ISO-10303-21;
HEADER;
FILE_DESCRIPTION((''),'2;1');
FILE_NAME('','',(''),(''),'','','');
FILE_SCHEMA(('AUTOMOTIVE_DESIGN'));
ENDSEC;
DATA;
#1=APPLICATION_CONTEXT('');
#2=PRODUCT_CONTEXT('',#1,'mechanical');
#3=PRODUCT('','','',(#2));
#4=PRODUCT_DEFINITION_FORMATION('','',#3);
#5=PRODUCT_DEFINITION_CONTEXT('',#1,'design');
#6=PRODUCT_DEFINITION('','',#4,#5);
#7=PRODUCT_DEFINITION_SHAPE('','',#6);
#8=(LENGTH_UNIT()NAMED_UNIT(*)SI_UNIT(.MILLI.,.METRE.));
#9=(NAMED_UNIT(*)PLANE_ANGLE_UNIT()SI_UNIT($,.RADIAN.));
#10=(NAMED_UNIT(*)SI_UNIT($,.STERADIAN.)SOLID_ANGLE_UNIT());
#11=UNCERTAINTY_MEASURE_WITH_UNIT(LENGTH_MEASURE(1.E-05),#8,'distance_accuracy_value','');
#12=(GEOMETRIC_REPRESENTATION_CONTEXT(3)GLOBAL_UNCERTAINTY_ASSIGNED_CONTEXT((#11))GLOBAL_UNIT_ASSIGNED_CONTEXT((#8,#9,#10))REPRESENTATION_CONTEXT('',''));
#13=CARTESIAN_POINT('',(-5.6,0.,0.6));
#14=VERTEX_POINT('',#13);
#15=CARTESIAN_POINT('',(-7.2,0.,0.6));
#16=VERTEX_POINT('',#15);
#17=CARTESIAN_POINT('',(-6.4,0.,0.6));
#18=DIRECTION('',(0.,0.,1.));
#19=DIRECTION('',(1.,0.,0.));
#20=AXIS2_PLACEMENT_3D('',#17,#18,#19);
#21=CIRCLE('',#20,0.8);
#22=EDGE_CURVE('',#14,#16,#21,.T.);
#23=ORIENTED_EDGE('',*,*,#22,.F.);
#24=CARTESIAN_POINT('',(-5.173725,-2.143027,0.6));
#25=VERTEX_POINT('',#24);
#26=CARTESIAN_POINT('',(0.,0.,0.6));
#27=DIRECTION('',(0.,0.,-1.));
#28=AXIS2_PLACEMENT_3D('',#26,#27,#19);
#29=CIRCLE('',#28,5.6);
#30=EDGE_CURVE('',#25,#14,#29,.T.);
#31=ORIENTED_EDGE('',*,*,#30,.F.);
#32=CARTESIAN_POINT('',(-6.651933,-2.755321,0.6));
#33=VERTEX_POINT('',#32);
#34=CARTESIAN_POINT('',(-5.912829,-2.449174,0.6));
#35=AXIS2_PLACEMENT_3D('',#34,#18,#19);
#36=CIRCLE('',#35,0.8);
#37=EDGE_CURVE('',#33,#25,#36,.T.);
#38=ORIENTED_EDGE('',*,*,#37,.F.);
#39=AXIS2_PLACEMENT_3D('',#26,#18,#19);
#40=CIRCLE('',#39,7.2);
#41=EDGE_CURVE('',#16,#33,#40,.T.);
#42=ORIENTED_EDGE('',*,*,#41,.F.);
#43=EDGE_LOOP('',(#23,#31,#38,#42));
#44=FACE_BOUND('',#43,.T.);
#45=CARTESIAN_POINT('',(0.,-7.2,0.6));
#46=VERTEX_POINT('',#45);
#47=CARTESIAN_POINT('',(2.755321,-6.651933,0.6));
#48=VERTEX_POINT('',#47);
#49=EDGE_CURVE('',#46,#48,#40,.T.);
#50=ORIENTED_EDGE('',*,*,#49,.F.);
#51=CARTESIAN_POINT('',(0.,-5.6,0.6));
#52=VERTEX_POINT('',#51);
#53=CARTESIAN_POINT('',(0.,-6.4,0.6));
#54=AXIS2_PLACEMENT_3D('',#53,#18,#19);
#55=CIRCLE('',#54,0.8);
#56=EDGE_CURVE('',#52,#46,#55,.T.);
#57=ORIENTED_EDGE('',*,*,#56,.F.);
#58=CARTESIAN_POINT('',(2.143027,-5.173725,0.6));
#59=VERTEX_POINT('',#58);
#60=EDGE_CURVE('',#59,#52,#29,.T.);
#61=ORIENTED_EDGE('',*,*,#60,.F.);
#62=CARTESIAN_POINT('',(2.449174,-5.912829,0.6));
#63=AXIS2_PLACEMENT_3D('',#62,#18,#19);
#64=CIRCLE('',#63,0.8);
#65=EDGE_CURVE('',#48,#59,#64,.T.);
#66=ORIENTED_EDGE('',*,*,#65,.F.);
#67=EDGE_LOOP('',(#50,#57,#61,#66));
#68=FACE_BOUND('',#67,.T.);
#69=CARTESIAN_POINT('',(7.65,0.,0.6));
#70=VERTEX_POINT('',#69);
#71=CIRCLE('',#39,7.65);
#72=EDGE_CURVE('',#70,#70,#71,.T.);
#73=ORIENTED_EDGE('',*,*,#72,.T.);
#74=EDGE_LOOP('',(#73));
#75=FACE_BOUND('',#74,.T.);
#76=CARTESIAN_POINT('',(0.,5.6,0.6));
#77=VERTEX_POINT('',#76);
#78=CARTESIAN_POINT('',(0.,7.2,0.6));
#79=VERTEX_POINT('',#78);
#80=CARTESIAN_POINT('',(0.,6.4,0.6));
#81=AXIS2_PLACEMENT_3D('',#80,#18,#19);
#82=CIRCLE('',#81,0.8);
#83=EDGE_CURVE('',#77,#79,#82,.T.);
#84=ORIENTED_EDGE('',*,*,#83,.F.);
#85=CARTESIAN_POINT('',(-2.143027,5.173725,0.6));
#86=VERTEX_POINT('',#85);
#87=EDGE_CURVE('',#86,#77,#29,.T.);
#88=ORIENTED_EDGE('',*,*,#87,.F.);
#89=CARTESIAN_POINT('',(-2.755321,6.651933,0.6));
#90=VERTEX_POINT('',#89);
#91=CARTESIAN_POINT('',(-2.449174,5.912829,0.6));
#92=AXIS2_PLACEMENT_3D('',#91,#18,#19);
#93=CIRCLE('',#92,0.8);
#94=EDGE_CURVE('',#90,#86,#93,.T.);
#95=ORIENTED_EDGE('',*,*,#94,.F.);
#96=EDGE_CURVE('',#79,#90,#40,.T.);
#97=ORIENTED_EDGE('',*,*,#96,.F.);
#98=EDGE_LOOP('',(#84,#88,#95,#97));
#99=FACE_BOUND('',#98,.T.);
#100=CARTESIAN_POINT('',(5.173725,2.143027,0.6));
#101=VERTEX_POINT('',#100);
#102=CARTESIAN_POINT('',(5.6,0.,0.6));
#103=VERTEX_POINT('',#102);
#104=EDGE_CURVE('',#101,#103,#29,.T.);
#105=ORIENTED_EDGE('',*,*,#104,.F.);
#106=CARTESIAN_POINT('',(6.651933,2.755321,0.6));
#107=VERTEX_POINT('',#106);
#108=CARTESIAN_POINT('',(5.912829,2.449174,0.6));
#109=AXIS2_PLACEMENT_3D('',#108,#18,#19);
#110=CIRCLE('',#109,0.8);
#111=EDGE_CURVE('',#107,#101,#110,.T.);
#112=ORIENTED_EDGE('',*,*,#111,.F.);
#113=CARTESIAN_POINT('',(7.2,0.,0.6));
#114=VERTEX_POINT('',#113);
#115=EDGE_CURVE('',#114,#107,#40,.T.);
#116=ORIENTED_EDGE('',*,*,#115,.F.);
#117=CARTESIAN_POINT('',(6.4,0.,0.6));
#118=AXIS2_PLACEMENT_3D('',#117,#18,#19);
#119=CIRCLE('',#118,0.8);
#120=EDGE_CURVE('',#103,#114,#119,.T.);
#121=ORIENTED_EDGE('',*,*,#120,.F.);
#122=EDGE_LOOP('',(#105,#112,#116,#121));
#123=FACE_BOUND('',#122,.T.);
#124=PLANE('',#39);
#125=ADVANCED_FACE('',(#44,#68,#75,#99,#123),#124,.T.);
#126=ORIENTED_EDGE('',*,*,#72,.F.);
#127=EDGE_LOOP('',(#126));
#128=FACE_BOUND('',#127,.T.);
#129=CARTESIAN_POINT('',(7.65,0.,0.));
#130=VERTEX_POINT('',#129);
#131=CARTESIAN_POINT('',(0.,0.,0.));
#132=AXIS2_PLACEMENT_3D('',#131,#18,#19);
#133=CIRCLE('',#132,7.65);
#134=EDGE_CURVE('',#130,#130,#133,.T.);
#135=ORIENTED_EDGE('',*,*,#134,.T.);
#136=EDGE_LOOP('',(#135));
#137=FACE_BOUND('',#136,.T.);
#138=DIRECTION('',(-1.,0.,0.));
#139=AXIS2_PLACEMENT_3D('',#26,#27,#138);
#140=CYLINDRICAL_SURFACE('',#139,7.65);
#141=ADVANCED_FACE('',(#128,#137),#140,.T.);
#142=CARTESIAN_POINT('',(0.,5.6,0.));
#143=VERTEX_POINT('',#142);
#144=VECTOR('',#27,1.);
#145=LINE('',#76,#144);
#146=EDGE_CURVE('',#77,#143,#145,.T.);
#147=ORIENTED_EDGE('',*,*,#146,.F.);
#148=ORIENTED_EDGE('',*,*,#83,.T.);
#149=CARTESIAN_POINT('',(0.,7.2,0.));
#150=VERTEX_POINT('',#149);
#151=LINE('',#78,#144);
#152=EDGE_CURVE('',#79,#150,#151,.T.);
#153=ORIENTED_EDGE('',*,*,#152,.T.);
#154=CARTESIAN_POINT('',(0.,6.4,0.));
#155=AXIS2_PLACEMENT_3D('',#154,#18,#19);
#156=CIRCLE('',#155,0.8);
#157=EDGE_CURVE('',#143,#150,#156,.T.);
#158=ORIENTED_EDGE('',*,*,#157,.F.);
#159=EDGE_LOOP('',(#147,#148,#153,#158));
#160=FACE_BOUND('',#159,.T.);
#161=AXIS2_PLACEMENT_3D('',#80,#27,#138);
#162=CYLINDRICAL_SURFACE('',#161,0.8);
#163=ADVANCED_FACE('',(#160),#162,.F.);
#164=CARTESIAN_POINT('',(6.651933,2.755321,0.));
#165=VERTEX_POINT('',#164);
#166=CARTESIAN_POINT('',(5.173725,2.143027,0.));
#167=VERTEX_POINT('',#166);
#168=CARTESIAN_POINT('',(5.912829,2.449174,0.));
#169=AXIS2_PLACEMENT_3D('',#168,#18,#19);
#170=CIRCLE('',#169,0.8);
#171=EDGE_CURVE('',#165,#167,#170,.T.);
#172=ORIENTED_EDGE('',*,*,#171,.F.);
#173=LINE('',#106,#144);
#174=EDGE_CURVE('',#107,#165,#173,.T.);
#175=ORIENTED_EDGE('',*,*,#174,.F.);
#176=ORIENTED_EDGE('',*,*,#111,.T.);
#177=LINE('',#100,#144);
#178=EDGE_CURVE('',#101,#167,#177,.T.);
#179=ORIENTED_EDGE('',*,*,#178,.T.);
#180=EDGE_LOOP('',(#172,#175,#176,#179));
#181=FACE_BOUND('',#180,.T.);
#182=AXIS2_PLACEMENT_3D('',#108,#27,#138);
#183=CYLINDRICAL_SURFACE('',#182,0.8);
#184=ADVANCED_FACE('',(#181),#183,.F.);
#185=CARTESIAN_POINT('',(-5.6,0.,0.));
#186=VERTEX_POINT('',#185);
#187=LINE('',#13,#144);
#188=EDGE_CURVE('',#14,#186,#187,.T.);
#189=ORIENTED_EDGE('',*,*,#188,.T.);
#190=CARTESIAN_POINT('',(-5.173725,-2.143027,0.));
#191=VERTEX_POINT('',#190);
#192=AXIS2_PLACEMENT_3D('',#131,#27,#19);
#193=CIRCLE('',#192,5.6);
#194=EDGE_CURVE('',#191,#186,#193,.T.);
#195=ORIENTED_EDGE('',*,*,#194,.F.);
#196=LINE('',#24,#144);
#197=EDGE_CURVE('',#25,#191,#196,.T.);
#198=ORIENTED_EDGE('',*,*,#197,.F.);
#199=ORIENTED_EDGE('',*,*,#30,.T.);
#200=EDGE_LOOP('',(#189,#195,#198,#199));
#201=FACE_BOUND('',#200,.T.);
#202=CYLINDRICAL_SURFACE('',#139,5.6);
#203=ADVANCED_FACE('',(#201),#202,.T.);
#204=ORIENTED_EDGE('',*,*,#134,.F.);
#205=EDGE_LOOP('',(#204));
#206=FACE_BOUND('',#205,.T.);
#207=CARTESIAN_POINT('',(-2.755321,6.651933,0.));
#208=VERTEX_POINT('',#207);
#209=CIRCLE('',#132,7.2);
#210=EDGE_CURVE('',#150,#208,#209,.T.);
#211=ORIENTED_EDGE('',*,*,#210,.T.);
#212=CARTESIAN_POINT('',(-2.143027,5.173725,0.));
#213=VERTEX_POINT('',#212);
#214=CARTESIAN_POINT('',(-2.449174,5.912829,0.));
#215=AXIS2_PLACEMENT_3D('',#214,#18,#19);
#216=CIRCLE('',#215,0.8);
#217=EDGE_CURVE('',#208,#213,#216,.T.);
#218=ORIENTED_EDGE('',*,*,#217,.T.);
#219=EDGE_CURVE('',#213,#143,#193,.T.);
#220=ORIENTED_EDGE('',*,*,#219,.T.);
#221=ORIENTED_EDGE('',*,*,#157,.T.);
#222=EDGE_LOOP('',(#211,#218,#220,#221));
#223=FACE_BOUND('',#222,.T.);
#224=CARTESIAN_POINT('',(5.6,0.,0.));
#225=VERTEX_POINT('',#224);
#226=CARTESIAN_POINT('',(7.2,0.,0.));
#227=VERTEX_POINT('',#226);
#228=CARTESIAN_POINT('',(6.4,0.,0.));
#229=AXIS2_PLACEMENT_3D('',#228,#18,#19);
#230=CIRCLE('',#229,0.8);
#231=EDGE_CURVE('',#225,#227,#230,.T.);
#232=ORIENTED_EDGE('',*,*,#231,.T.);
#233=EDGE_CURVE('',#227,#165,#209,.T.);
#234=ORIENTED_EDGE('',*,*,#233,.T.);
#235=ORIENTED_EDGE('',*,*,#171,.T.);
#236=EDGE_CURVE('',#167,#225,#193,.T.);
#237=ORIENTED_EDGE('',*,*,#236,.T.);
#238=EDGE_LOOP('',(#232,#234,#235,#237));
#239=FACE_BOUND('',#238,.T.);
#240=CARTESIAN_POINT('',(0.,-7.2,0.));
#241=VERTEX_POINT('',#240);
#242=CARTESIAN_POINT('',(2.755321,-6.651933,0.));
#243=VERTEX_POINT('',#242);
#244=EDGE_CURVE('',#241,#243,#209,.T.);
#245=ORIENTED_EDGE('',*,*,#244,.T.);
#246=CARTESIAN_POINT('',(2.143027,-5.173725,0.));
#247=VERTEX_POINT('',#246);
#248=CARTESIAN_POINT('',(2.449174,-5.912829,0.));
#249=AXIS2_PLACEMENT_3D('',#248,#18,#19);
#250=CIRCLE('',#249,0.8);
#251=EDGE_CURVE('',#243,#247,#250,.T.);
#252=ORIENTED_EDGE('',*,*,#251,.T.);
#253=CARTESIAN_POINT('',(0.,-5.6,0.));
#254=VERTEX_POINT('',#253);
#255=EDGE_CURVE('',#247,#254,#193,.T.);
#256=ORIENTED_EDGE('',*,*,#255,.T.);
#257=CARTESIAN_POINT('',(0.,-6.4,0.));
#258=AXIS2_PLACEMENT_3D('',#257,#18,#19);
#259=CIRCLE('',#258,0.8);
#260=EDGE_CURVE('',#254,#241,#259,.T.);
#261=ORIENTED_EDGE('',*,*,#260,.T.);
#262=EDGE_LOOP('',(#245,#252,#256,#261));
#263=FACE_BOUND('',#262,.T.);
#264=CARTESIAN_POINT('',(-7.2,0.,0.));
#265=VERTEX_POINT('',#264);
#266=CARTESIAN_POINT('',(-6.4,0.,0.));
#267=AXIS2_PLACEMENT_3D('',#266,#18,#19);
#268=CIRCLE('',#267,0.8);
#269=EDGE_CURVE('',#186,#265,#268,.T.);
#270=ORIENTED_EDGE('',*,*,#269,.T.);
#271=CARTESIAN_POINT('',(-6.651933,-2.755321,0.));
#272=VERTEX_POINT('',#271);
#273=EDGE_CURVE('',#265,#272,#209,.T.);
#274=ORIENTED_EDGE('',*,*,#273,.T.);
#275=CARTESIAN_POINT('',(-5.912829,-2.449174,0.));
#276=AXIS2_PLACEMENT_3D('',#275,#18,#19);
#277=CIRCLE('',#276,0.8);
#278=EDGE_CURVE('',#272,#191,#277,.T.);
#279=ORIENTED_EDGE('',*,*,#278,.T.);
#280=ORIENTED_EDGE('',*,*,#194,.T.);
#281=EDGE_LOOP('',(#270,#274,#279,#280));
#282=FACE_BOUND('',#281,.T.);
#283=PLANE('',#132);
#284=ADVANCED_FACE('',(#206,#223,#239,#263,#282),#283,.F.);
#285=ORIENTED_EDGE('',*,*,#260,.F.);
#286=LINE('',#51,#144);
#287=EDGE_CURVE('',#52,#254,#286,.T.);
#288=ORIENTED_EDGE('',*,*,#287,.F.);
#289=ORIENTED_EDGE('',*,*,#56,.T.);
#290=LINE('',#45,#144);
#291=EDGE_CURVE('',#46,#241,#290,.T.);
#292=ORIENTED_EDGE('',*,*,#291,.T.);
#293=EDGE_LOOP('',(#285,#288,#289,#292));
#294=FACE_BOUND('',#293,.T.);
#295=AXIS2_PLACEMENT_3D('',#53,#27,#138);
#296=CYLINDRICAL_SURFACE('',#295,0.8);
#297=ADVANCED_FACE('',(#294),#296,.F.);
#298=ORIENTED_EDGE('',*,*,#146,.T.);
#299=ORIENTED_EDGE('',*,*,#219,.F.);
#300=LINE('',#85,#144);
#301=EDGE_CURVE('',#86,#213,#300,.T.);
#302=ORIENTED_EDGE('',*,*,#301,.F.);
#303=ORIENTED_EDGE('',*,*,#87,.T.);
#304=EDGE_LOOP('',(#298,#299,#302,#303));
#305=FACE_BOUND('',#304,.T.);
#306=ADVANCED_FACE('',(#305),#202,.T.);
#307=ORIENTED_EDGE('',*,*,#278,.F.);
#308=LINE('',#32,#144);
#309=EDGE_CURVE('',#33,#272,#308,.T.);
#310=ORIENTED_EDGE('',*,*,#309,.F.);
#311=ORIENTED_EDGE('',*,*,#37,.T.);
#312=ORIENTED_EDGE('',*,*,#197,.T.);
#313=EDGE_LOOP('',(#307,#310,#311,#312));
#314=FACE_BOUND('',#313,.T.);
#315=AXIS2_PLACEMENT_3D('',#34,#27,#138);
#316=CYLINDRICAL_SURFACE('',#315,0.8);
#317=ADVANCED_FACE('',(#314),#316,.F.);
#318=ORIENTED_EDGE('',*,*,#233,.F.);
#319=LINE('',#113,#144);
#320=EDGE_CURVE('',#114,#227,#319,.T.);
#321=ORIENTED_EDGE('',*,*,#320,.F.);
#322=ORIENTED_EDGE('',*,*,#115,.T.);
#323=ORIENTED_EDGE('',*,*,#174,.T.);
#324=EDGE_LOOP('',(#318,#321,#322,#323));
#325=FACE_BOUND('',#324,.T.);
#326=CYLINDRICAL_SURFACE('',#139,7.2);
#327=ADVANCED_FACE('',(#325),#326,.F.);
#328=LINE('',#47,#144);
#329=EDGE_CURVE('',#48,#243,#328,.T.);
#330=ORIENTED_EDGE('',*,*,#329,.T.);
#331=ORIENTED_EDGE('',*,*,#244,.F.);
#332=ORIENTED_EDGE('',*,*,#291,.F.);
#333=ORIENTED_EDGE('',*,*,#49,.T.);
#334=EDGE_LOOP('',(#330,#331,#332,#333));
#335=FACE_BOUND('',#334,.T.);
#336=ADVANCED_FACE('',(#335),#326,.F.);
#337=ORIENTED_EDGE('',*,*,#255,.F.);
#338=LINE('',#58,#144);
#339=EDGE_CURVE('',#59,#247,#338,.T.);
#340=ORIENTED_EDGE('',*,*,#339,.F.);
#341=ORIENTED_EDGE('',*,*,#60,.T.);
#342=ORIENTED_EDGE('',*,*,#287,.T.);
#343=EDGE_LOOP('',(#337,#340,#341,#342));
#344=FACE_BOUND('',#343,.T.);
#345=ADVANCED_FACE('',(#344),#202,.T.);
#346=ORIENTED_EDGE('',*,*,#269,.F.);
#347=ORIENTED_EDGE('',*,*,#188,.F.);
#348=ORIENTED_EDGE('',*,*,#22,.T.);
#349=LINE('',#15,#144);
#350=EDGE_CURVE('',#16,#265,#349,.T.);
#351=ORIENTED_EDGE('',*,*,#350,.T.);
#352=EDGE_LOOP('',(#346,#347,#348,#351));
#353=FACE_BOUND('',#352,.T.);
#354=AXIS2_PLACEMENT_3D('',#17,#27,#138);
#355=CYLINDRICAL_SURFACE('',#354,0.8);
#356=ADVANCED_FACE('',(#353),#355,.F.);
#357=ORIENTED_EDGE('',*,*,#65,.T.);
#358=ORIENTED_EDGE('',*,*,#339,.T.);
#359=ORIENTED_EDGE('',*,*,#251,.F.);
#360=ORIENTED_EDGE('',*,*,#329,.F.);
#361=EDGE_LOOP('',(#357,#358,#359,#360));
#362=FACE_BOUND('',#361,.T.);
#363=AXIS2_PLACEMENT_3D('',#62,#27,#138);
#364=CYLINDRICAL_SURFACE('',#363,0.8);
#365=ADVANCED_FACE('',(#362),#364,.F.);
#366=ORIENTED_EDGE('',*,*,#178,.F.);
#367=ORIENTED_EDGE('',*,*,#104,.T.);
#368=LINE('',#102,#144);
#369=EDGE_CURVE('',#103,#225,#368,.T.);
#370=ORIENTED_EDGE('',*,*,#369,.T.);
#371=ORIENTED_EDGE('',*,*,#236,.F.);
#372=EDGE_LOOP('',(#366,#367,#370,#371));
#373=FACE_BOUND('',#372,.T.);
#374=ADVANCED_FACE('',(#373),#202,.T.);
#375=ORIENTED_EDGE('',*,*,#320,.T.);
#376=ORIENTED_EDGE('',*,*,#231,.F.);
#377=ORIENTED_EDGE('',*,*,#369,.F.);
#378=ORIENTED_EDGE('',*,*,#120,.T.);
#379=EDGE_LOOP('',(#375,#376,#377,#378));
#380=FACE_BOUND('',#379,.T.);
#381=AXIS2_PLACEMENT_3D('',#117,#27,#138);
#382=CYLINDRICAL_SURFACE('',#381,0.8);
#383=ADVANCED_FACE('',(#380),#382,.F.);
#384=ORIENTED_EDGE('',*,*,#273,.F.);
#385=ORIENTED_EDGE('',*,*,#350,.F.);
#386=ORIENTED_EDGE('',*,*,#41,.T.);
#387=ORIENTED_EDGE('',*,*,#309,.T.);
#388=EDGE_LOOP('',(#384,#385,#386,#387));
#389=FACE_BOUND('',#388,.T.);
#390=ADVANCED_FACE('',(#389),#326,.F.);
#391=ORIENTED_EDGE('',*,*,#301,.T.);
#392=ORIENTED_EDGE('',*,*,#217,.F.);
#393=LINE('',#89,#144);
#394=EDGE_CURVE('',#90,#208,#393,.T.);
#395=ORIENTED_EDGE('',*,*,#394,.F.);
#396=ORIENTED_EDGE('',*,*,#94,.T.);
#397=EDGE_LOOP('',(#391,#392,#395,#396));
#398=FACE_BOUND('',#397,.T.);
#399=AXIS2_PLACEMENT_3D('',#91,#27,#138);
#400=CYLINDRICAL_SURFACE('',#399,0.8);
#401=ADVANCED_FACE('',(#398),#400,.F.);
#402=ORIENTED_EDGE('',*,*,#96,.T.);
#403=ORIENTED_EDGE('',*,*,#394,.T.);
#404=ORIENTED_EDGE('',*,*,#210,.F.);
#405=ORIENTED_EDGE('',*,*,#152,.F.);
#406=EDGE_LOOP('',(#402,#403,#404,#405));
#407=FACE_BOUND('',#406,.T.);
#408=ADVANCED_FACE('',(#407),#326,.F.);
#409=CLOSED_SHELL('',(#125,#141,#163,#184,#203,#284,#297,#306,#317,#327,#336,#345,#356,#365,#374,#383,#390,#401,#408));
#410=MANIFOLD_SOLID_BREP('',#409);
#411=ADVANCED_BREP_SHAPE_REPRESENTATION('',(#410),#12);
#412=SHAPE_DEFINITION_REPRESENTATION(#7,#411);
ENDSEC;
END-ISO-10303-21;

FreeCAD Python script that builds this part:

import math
import FreeCAD as App
import Part
import Sketcher

V = App.Vector
Q = App.Units.Quantity

doc = App.newDocument("Part")
body = doc.addObject("PartDesign::Body", "Body")

# Sketch on XY plane
sketch1 = doc.addObject("Sketcher::SketchObject", "Sketch")
body.addObject(sketch1)
sketch1.AttachmentSupport = (doc.XY_Plane, [""])
sketch1.MapMode = "FlatFace"
sketch1.addGeometry([
    Part.Circle(V(0, 0, 0), V(0, 0, 1), 7.65),  # 0
    Part.ArcOfCircle(Part.Circle(V(-5.912829, -2.449174, 0), V(0, 0, 1), 0.8), math.radians(-157.5), math.radians(22.5)),  # 1
    Part.ArcOfCircle(Part.Circle(V(0, 0, 0), V(0, 0, 1), 7.2), math.radians(180), math.radians(202.5)),  # 2
    Part.ArcOfCircle(Part.Circle(V(-6.4, 0, 0), V(0, 0, 1), 0.8), math.radians(0), math.radians(180)),  # 3
    Part.ArcOfCircle(Part.Circle(V(0, 0, 0), V(0, 0, 1), 5.6), math.radians(-180), math.radians(-157.5)),  # 4
    Part.ArcOfCircle(Part.Circle(V(2.449174, -5.912829, 0), V(0, 0, 1), 0.8), math.radians(-67.5), math.radians(112.5)),  # 5
    Part.ArcOfCircle(Part.Circle(V(0, 0, 0), V(0, 0, 1), 7.2), math.radians(-90), math.radians(-67.5)),  # 6
    Part.ArcOfCircle(Part.Circle(V(0, -6.4, 0), V(0, 0, 1), 0.8), math.radians(90), math.radians(270)),  # 7
    Part.ArcOfCircle(Part.Circle(V(0, 0, 0), V(0, 0, 1), 5.6), math.radians(-90), math.radians(-67.5)),  # 8
    Part.ArcOfCircle(Part.Circle(V(0, 6.4, 0), V(0, 0, 1), 0.8), math.radians(-90), math.radians(90)),  # 9
    Part.ArcOfCircle(Part.Circle(V(0, 0, 0), V(0, 0, 1), 5.6), math.radians(90), math.radians(112.5)),  # 10
    Part.ArcOfCircle(Part.Circle(V(-2.449174, 5.912829, 0), V(0, 0, 1), 0.8), math.radians(112.5), math.radians(292.5)),  # 11
    Part.ArcOfCircle(Part.Circle(V(0, 0, 0), V(0, 0, 1), 7.2), math.radians(90), math.radians(112.5)),  # 12
    Part.ArcOfCircle(Part.Circle(V(5.912829, 2.449174, 0), V(0, 0, 1), 0.8), math.radians(22.5), math.radians(202.5)),  # 13
    Part.ArcOfCircle(Part.Circle(V(0, 0, 0), V(0, 0, 1), 7.2), math.radians(0), math.radians(22.5)),  # 14
    Part.ArcOfCircle(Part.Circle(V(6.4, 0, 0), V(0, 0, 1), 0.8), math.radians(180), math.radians(360)),  # 15
    Part.ArcOfCircle(Part.Circle(V(0, 0, 0), V(0, 0, 1), 5.6), math.radians(0), math.radians(22.5)),  # 16
], False)
sketch1.addConstraint([
    Sketcher.Constraint("Tangent", 1, 1, 2, 2),
    Sketcher.Constraint("Tangent", 2, 1, 3, 2),
    Sketcher.Constraint("Tangent", 3, 1, 4, 1),
    Sketcher.Constraint("Tangent", 4, 2, 1, 2),
    Sketcher.Constraint("Tangent", 5, 1, 6, 2),
    Sketcher.Constraint("Tangent", 6, 1, 7, 2),
    Sketcher.Constraint("Tangent", 7, 1, 8, 1),
    Sketcher.Constraint("Tangent", 8, 2, 5, 2),
    Sketcher.Constraint("Tangent", 9, 1, 10, 1),
    Sketcher.Constraint("Tangent", 10, 2, 11, 2),
    Sketcher.Constraint("Tangent", 11, 1, 12, 2),
    Sketcher.Constraint("Tangent", 12, 1, 9, 2),
    Sketcher.Constraint("Tangent", 13, 1, 14, 2),
    Sketcher.Constraint("Tangent", 14, 1, 15, 2),
    Sketcher.Constraint("Tangent", 15, 1, 16, 1),
    Sketcher.Constraint("Tangent", 16, 2, 13, 2),
    Sketcher.Constraint("Coincident", 0, 3, -1, 1),
    Sketcher.Constraint("Coincident", 2, 3, -1, 1),
    Sketcher.Constraint("Coincident", 4, 3, -1, 1),
    Sketcher.Constraint("Coincident", 6, 3, -1, 1),
    Sketcher.Constraint("Coincident", 8, 3, -1, 1),
    Sketcher.Constraint("Coincident", 10, 3, -1, 1),
    Sketcher.Constraint("Coincident", 12, 3, -1, 1),
    Sketcher.Constraint("Coincident", 14, 3, -1, 1),
    Sketcher.Constraint("Coincident", 16, 3, -1, 1),
    Sketcher.Constraint("Equal", 3, 5),
    Sketcher.Constraint("Equal", 2, 6),
    Sketcher.Constraint("Equal", 7, 9),
    Sketcher.Constraint("Equal", 8, 10),
    Sketcher.Constraint("Equal", 11, 13),
    Sketcher.Constraint("Equal", 12, 14),
    Sketcher.Constraint("PointOnObject", 3, 3, -1),
    Sketcher.Constraint("PointOnObject", 7, 3, -2),
    Sketcher.Constraint("PointOnObject", 9, 3, -2),
    Sketcher.Constraint("PointOnObject", 15, 3, -1),
    Sketcher.Constraint("Diameter", 0, Q("15.3 mm")),
    Sketcher.Constraint("Radius", 1, Q("0.8 mm")),
    Sketcher.Constraint("Radius", 2, Q("7.2 mm")),
    Sketcher.Constraint("DistanceX", 1, 3, -1, 1, Q("5.912829 mm")),
    Sketcher.Constraint("DistanceY", 5, 3, -1, 1, Q("5.912829 mm")),
    Sketcher.Constraint("DistanceY", -1, 1, 11, 3, Q("5.912829 mm")),
    Sketcher.Constraint("DistanceX", -1, 1, 13, 3, Q("5.912829 mm")),
])
pad1 = doc.addObject("PartDesign::Pad", "Pad")
body.addObject(pad1)
pad1.Profile = sketch1
pad1.Length = 0.6

doc.recompute()
